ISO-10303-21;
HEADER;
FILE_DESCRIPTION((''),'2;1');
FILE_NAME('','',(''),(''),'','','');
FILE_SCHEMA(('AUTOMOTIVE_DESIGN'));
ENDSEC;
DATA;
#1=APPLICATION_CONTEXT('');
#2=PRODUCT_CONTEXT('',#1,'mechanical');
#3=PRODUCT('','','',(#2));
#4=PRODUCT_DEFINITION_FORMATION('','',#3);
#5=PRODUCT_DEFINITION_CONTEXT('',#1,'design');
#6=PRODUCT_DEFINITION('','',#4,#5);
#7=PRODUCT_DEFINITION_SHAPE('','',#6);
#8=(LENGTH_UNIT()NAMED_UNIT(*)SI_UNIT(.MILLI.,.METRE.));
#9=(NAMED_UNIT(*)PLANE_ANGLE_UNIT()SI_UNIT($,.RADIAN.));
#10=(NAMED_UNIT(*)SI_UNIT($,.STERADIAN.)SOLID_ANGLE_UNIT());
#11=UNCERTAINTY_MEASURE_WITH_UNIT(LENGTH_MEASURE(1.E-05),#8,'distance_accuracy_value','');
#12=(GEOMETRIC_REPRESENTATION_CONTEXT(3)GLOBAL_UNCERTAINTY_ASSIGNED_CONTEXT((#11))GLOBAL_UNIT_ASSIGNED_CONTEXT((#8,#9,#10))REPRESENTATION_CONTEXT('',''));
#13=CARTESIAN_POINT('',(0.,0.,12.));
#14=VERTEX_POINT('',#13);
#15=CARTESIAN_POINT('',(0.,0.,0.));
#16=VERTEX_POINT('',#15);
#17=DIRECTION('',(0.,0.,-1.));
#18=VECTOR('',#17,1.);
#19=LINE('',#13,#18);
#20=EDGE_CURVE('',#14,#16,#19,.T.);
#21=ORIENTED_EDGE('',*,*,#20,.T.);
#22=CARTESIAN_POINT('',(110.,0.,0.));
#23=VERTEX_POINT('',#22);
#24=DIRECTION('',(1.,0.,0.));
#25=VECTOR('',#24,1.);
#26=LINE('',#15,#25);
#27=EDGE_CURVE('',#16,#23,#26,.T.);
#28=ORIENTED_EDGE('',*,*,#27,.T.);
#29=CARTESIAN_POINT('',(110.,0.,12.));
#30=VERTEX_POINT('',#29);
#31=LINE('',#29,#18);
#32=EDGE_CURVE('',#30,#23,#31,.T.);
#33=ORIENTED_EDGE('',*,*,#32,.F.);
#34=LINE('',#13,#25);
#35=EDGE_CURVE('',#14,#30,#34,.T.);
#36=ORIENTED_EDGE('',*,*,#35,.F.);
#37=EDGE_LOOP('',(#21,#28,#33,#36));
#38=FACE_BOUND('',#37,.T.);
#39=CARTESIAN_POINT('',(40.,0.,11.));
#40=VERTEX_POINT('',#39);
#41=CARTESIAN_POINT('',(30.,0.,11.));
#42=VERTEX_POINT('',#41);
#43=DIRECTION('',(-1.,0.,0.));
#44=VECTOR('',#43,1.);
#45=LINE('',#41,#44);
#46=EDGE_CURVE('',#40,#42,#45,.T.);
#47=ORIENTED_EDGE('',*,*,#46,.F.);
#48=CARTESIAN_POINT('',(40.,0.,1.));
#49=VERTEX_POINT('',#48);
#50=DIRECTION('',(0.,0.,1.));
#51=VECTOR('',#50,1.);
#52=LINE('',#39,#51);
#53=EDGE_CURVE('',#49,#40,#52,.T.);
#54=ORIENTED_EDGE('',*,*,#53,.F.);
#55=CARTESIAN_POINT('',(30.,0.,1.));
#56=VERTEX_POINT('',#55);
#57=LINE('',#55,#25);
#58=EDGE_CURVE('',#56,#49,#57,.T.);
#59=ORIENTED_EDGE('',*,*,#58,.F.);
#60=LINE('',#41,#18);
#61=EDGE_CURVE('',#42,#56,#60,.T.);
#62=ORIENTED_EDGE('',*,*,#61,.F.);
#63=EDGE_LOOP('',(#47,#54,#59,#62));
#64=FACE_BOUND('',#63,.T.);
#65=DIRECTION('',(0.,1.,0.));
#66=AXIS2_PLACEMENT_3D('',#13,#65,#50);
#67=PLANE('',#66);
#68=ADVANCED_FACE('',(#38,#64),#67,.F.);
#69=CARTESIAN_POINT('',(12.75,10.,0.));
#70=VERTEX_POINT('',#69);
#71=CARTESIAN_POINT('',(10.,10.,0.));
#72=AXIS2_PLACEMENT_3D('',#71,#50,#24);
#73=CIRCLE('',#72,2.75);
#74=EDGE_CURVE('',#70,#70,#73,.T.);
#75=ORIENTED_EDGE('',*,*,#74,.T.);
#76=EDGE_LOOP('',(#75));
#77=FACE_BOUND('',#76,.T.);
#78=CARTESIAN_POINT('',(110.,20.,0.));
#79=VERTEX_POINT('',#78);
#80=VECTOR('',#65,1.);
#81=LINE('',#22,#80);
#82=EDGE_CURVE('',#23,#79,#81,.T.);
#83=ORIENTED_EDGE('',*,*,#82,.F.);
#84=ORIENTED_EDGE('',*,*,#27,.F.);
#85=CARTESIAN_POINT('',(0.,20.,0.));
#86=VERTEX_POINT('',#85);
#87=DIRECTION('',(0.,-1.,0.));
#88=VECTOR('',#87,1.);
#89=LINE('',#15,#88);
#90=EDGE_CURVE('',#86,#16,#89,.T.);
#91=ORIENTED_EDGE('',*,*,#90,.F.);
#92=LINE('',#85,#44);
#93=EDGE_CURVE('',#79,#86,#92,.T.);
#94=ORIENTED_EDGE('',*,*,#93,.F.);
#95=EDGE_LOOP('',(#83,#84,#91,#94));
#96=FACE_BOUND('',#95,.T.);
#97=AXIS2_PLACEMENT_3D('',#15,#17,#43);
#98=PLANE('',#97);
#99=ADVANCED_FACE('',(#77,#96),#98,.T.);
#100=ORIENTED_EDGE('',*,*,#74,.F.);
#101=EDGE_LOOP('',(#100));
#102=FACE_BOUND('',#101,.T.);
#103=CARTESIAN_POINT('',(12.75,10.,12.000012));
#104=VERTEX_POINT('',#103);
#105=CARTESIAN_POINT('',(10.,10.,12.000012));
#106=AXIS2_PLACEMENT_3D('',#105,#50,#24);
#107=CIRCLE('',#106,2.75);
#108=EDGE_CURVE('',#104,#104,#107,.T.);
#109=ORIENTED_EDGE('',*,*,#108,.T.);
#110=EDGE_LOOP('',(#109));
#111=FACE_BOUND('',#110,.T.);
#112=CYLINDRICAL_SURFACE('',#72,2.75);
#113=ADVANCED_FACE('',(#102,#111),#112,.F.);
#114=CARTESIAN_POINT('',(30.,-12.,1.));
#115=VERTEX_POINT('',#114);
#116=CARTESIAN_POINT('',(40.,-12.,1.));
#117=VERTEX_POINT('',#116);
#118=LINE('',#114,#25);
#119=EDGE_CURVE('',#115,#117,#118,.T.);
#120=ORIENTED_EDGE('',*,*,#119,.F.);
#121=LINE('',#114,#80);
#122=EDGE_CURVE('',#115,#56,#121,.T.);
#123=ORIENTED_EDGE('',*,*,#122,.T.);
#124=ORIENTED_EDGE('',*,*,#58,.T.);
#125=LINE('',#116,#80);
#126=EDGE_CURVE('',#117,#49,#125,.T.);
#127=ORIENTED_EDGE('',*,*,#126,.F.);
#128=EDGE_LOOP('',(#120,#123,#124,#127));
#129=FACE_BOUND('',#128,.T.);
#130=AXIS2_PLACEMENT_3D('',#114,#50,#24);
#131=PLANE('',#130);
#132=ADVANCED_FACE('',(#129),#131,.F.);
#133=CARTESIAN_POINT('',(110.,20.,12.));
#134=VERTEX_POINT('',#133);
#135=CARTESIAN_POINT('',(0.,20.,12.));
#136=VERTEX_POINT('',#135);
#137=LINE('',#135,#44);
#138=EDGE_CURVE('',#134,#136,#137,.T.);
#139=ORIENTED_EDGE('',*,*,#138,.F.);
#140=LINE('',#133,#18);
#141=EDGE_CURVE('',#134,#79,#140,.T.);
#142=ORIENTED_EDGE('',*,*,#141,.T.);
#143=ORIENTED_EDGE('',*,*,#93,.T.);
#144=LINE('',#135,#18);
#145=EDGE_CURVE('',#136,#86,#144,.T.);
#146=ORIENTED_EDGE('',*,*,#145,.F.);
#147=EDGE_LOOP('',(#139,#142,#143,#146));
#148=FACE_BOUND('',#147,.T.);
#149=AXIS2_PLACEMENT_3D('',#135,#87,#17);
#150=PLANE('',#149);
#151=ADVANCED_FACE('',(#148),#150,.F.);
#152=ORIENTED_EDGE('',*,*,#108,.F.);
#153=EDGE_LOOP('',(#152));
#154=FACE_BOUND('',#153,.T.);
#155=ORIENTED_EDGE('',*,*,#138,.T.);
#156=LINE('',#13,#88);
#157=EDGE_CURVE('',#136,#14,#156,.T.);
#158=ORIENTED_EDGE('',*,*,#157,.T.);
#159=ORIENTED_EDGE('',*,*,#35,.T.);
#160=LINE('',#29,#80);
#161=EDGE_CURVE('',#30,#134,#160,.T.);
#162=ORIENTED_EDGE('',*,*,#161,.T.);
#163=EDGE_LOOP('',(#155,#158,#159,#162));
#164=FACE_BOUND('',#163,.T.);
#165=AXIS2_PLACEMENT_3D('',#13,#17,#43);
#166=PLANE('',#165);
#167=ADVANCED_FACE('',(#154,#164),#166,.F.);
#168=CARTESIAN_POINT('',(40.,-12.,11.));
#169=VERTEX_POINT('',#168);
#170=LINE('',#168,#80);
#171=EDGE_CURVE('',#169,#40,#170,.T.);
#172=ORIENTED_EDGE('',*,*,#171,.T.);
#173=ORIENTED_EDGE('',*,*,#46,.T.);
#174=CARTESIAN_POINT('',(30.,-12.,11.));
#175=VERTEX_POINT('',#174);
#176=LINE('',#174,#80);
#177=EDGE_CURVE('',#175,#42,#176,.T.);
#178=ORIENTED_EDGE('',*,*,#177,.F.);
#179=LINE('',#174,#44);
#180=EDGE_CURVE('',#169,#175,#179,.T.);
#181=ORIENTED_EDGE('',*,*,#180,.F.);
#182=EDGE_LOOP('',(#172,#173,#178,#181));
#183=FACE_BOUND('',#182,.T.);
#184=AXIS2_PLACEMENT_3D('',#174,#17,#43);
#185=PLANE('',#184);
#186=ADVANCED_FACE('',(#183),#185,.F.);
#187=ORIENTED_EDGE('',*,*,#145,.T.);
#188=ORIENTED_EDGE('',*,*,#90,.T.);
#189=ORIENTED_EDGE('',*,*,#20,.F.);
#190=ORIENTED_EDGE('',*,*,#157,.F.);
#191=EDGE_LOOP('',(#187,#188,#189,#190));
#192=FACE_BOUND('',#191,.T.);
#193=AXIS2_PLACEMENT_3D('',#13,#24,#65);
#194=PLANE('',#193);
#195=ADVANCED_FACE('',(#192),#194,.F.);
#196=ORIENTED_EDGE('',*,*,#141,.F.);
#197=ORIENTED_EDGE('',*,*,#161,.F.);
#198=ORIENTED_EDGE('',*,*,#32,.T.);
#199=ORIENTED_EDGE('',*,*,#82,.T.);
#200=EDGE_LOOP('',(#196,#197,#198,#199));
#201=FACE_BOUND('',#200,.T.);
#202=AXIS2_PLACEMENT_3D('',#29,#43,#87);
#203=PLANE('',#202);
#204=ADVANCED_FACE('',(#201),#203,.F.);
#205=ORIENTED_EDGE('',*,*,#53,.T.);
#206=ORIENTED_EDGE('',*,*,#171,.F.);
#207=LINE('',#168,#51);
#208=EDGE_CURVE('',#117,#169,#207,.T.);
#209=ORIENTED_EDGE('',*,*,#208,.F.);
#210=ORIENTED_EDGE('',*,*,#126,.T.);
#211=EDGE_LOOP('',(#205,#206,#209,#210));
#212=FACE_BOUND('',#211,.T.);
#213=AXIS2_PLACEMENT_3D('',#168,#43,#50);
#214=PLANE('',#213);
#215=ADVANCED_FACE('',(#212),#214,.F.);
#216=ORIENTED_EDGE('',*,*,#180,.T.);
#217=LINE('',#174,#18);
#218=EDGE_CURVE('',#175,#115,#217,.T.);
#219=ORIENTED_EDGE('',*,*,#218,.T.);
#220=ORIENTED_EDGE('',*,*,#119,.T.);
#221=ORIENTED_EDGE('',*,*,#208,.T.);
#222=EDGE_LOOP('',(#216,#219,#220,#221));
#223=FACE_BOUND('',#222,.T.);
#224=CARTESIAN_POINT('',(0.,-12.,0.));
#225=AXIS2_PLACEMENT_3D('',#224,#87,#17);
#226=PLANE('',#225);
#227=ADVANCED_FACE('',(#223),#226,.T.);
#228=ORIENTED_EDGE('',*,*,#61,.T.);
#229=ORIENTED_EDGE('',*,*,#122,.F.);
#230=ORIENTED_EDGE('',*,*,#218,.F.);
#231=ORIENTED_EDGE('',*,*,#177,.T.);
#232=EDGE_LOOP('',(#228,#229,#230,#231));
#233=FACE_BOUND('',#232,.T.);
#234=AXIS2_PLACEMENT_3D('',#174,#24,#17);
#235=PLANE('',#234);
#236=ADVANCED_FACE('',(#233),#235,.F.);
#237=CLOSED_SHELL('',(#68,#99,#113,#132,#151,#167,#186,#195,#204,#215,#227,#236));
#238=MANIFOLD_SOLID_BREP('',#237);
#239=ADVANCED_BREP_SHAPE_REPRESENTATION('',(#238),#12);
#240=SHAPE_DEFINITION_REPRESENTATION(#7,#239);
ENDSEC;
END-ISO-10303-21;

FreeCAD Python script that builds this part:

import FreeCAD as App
import Part
import Sketcher

doc = App.newDocument("Part")
params = doc.addObject("Spreadsheet::Sheet", "Params")
for row, (alias, value) in enumerate([
    ("sketch1_width", "110 mm"),
    ("sketch1_height", "20 mm"),
    ("pad1_length", "12 mm"),
    ("sketch2_diameter", "5.5 mm"),
    ("sketch3_width", "10 mm"),
    ("pad2_length", "12 mm"),
], start=1):
    params.set(f"A{row}", alias)
    params.set(f"B{row}", "=" + value)
    params.setAlias(f"B{row}", alias)

body = doc.addObject("PartDesign::Body", "Body")

# Sketch on XY plane
sketch1 = body.newObject("Sketcher::SketchObject", "Sketch")
sketch1.AttachmentSupport = (doc.getObject("XY_Plane"), [""])
sketch1.MapMode = "FlatFace"
sketch1.addGeometry([
    Part.LineSegment(App.Vector(0, 20, 0), App.Vector(0, 0, 0)),
    Part.LineSegment(App.Vector(0, 0, 0), App.Vector(110, 0, 0)),
    Part.LineSegment(App.Vector(110, 0, 0), App.Vector(110, 20, 0)),
    Part.LineSegment(App.Vector(110, 20, 0), App.Vector(0, 20, 0)),
], False)
sketch1.addConstraint([
    Sketcher.Constraint("Coincident", 0, 2, 1, 1),
    Sketcher.Constraint("Coincident", 1, 2, 2, 1),
    Sketcher.Constraint("Coincident", 2, 2, 3, 1),
    Sketcher.Constraint("Coincident", 3, 2, 0, 1),
    Sketcher.Constraint("Vertical", 0),
    Sketcher.Constraint("Horizontal", 1),
    Sketcher.Constraint("Vertical", 2),
    Sketcher.Constraint("Horizontal", 3),
    Sketcher.Constraint("Coincident", 0, 2, -1, 1),
    Sketcher.Constraint("DistanceX", 1, 1, 1, 2, 110.0),
    Sketcher.Constraint("DistanceY", 0, 2, 0, 1, 20.0),
])
sketch1.setExpression("Constraints[9]", "Params.sketch1_width")
sketch1.setExpression("Constraints[10]", "Params.sketch1_height")
pad1 = body.newObject("PartDesign::Pad", "Pad")
pad1.Profile = sketch1
pad1.setExpression("Length", "Params.pad1_length")

# Sketch on XY plane
sketch2 = body.newObject("Sketcher::SketchObject", "Sketch001")
sketch2.AttachmentSupport = (doc.getObject("XY_Plane"), [""])
sketch2.MapMode = "FlatFace"
sketch2.AttachmentOffset = App.Placement(App.Vector(0, 0, 12), App.Rotation())
sketch2.addGeometry(Part.Circle(App.Vector(10, 10, 0), App.Vector(0, 0, 1), 2.8), False)
sketch2.addConstraint([
    Sketcher.Constraint("Diameter", 0, 5.5),
    Sketcher.Constraint("DistanceX", -1, 1, 0, 3, 10.0),
    Sketcher.Constraint("DistanceY", -1, 1, 0, 3, 10.0),
])
sketch2.setExpression("Constraints[0]", "Params.sketch2_diameter")
pocket1 = body.newObject("PartDesign::Pocket", "Pocket")
pocket1.Profile = sketch2
pocket1.Type = "ThroughAll"
pocket1.Midplane = True

# Sketch on XZ plane
sketch3 = body.newObject("Sketcher::SketchObject", "Sketch002")
sketch3.AttachmentSupport = (doc.getObject("XZ_Plane"), [""])
sketch3.MapMode = "FlatFace"
sketch3.addGeometry([
    Part.LineSegment(App.Vector(30, 11, 0), App.Vector(30, 1, 0)),
    Part.LineSegment(App.Vector(30, 1, 0), App.Vector(40, 1, 0)),
    Part.LineSegment(App.Vector(40, 1, 0), App.Vector(40, 11, 0)),
    Part.LineSegment(App.Vector(40, 11, 0), App.Vector(30, 11, 0)),
], False)
sketch3.addConstraint([
    Sketcher.Constraint("Coincident", 0, 2, 1, 1),
    Sketcher.Constraint("Coincident", 1, 2, 2, 1),
    Sketcher.Constraint("Coincident", 2, 2, 3, 1),
    Sketcher.Constraint("Coincident", 3, 2, 0, 1),
    Sketcher.Constraint("Vertical", 0),
    Sketcher.Constraint("Horizontal", 1),
    Sketcher.Constraint("Vertical", 2),
    Sketcher.Constraint("Horizontal", 3),
    Sketcher.Constraint("Equal", 3, 0),
    Sketcher.Constraint("DistanceX", 1, 1, 1, 2, 10.0),
    Sketcher.Constraint("DistanceX", -1, 1, 0, 2, 30.0),
    Sketcher.Constraint("DistanceY", -1, 1, 0, 2, 1.0),
])
sketch3.setExpression("Constraints[9]", "Params.sketch3_width")
pad2 = body.newObject("PartDesign::Pad", "Pad001")
pad2.Profile = sketch3
pad2.setExpression("Length", "Params.pad2_length")

doc.recompute()
